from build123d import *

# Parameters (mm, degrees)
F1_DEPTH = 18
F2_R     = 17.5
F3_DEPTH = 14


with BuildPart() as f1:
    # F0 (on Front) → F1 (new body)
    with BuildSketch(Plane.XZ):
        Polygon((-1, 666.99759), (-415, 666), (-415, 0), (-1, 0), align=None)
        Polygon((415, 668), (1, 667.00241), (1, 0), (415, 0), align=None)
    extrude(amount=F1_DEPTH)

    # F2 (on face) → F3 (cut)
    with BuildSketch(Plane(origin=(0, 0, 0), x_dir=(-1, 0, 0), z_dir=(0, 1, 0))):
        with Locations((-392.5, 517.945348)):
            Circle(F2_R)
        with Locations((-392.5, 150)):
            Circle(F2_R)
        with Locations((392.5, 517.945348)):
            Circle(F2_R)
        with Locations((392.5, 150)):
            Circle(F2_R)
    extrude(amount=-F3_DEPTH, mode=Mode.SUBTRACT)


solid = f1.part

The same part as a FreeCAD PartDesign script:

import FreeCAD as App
import Part
import Sketcher
from FreeCAD import Vector
Q = App.Units.Quantity


def add_polygon(sketch, points):
    """Adds a closed chain of lines whose ends are joined by coincident constraints."""
    first, n = sketch.GeometryCount, len(points)
    for a, b in zip(points, points[1:] + points[:1]):
        sketch.addGeometry(Part.LineSegment(App.Vector(*a, 0), App.Vector(*b, 0)), False)
    for i in range(n):
        sketch.addConstraint(Sketcher.Constraint("Coincident", first + i, 2, first + (i + 1) % n, 1))

doc = App.newDocument("Part")
body = doc.addObject("PartDesign::Body", "Body")
body.AllowCompound = True

# Sketch on XZ plane
sketch1 = body.newObject("Sketcher::SketchObject", "Sketch")
sketch1.AttachmentSupport = (doc.getObject("XZ_Plane"), [""])
sketch1.MapMode = "FlatFace"
add_polygon(sketch1, [(-1, 667), (-415, 666), (-415, 0), (-1, 0)])  # lines 0-3
add_polygon(sketch1, [(415, 668), (1, 667), (1, 0), (415, 0)])  # lines 4-7
sketch1.addConstraint(Sketcher.Constraint("Vertical", 1))
sketch1.addConstraint(Sketcher.Constraint("Horizontal", 2))
sketch1.addConstraint(Sketcher.Constraint("Vertical", 3))
sketch1.addConstraint(Sketcher.Constraint("Vertical", 5))
sketch1.addConstraint(Sketcher.Constraint("Horizontal", 6))
sketch1.addConstraint(Sketcher.Constraint("Vertical", 7))
sketch1.addConstraint(Sketcher.Constraint("Symmetric", 2, 2, 5, 2, -1, 1))
sketch1.addConstraint(Sketcher.Constraint("Symmetric", 1, 2, 6, 2, -2))
sketch1.addConstraint(Sketcher.Constraint("Parallel", 0, 4))
sketch1.addConstraint(Sketcher.Constraint("DistanceX", 2, 1, 2, 2, Q("414 mm")))
sketch1.addConstraint(Sketcher.Constraint("DistanceY", 1, 2, 1, 1, Q("666 mm")))
sketch1.addConstraint(Sketcher.Constraint("DistanceY", 7, 1, 7, 2, Q("668 mm")))
sketch1.addConstraint(Sketcher.Constraint("DistanceX", 0, 2, -1, 1, Q("415 mm")))
sketch1.addConstraint(Sketcher.Constraint("DistanceY", 3, 1, 3, 2, Q("666.99759 mm")))
pad1 = body.newObject("PartDesign::Pad", "Pad")
pad1.Profile = sketch1
pad1.Length = 18

# Sketch on XZ plane
sketch2 = body.newObject("Sketcher::SketchObject", "Sketch001")
sketch2.AttachmentSupport = (doc.getObject("XZ_Plane"), [""])
sketch2.MapMode = "FlatFace"
sketch2.addGeometry(Part.Circle(Vector(392, 518, 0), Vector(0, 0, 1), 18), False)
sketch2.addGeometry(Part.Circle(Vector(392, 150, 0), Vector(0, 0, 1), 18), False)
sketch2.addGeometry(Part.Circle(Vector(-392, 518, 0), Vector(0, 0, 1), 18), False)
sketch2.addGeometry(Part.Circle(Vector(-392, 150, 0), Vector(0, 0, 1), 18), False)
sketch2.addConstraint(Sketcher.Constraint("Equal", 0, 1))
sketch2.addConstraint(Sketcher.Constraint("Equal", 1, 2))
sketch2.addConstraint(Sketcher.Constraint("Equal", 2, 3))
sketch2.addConstraint(Sketcher.Constraint("Symmetric", 0, 3, 2, 3, -2))
sketch2.addConstraint(Sketcher.Constraint("Symmetric", 1, 3, 3, 3, -2))
sketch2.addConstraint(Sketcher.Constraint("Vertical", 0, 3, 1, 3))
sketch2.addConstraint(Sketcher.Constraint("Diameter", 0, Q("35 mm")))
sketch2.addConstraint(Sketcher.Constraint("DistanceY", -1, 1, 1, 3, Q("150 mm")))
sketch2.addConstraint(Sketcher.Constraint("DistanceX", 2, 3, 0, 3, Q("785 mm")))
sketch2.addConstraint(Sketcher.Constraint("DistanceY", -1, 1, 0, 3, Q("517.945348 mm")))
pocket1 = body.newObject("PartDesign::Pocket", "Pocket")
pocket1.Profile = sketch2
pocket1.Length = 14
pocket1.Reversed = True

doc.recompute()
